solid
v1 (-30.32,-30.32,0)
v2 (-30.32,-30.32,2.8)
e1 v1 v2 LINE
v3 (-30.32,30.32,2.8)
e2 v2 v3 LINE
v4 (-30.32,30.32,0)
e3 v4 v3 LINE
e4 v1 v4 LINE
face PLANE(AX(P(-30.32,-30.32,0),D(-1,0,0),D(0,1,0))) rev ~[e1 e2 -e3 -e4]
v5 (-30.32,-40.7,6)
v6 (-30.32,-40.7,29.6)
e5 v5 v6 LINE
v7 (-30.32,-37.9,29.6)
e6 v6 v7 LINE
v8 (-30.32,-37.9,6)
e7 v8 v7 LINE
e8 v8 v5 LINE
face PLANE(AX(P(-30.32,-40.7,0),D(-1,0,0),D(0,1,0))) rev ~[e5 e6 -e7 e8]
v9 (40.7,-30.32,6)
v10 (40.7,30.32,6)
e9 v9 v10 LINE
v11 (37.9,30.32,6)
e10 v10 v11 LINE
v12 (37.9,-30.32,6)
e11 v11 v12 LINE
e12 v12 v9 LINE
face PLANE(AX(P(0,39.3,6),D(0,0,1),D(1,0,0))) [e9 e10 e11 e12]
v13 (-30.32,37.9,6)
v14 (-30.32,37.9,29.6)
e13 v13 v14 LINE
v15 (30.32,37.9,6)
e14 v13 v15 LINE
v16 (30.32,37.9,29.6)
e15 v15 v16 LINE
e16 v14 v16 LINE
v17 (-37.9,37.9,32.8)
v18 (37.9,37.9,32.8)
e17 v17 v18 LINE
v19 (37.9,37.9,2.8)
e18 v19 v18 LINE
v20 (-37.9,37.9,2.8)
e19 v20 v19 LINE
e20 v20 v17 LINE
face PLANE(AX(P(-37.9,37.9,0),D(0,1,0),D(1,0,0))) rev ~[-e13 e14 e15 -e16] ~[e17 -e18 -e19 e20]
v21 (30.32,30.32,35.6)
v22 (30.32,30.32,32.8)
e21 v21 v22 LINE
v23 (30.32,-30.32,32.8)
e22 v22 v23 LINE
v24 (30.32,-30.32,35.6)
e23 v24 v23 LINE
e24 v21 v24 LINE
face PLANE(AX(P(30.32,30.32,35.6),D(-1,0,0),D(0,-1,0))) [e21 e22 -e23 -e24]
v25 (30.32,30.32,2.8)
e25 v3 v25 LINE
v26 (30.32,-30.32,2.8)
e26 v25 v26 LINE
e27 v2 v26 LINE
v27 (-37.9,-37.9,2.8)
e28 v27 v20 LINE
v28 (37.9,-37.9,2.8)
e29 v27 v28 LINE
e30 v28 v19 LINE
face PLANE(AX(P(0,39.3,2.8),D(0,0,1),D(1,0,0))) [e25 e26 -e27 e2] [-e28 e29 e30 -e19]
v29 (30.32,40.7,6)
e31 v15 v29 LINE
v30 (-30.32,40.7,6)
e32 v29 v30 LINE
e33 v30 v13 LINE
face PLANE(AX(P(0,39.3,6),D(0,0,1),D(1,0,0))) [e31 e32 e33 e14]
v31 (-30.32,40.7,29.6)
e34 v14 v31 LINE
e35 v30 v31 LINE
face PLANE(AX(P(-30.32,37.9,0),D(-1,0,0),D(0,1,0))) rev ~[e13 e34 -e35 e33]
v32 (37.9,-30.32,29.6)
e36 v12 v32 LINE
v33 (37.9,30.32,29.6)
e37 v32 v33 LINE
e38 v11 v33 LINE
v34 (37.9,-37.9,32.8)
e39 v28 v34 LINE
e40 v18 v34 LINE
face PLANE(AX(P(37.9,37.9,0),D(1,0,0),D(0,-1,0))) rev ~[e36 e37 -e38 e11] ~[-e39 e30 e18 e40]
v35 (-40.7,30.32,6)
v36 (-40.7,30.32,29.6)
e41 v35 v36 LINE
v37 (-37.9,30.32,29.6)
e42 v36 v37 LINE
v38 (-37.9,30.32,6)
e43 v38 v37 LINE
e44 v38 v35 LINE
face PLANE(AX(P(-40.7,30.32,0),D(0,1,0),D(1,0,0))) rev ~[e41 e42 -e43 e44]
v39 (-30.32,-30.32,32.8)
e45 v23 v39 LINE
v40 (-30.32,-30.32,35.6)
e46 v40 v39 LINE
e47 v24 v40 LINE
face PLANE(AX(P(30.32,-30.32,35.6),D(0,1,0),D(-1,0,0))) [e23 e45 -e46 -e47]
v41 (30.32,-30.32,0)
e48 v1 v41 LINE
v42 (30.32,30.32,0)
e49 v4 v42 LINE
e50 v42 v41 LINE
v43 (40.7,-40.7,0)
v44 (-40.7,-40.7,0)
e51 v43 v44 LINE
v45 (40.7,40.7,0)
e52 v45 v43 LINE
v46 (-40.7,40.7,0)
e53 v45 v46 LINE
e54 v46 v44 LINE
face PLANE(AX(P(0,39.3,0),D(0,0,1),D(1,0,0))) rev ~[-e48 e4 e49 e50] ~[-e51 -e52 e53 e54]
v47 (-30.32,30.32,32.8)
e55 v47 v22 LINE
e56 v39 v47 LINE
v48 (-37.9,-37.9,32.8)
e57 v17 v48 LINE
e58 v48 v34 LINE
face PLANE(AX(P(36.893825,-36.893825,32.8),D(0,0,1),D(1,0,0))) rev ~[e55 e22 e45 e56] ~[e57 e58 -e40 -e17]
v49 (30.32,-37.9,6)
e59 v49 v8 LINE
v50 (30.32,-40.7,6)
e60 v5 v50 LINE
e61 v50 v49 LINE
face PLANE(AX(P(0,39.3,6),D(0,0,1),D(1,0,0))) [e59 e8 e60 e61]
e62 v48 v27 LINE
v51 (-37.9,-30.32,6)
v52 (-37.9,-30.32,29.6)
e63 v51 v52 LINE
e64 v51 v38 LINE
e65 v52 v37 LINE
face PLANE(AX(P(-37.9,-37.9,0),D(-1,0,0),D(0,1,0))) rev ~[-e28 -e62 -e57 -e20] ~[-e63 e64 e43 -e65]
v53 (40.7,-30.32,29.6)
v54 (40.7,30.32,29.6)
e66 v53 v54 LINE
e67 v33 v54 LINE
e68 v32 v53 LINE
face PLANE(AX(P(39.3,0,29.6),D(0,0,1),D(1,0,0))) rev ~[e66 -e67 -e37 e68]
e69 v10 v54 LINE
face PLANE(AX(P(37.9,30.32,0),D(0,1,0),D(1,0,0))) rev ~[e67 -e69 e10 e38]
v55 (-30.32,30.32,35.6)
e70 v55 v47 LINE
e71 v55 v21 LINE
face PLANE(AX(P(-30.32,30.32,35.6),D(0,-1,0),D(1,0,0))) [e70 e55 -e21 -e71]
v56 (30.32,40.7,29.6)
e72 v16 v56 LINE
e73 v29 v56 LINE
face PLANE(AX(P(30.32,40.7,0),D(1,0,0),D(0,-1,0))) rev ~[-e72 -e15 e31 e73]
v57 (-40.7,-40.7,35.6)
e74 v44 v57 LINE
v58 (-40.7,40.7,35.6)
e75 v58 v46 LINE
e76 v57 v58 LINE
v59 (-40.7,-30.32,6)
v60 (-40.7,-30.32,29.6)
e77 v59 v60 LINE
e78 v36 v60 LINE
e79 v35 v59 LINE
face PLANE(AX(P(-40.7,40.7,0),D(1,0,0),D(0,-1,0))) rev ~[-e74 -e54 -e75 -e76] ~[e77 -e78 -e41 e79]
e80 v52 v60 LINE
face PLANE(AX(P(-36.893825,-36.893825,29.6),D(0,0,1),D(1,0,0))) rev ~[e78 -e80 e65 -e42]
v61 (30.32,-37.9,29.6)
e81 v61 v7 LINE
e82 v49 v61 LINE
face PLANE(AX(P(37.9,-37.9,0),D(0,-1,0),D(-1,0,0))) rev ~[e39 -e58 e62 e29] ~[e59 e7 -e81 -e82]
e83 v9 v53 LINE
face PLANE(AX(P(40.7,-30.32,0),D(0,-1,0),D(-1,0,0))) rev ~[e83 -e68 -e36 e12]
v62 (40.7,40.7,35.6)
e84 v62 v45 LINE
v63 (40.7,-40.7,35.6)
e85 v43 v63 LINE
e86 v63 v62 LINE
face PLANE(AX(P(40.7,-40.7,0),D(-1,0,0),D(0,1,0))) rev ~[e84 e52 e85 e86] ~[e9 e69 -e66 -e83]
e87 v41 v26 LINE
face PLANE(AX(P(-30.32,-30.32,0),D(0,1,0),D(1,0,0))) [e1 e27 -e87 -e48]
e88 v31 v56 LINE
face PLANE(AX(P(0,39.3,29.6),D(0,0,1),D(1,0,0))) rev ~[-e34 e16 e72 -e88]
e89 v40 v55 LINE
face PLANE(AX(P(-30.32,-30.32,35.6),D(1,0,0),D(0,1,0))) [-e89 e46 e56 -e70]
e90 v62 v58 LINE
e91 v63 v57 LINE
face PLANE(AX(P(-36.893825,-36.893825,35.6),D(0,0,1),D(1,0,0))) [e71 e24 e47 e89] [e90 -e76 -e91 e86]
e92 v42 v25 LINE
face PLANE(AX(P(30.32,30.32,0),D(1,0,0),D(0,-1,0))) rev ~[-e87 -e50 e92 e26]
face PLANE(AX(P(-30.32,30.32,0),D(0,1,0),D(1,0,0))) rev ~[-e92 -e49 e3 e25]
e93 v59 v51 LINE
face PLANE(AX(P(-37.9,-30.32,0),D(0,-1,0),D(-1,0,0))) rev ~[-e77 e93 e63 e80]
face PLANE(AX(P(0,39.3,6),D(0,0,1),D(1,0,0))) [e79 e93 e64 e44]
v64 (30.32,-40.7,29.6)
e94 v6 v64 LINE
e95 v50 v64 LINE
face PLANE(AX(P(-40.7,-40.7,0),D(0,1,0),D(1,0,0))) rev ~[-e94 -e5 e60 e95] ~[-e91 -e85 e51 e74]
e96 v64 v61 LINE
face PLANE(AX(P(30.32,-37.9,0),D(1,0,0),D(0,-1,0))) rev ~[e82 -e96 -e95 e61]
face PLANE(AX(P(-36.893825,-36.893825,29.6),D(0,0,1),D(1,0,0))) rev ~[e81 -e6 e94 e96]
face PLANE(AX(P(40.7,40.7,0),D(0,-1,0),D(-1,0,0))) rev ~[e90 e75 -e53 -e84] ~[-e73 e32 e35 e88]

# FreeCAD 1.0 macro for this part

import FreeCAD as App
import Part
import Sketcher
from FreeCAD import Vector


def add_polygon(sketch, points):
    """Adds a closed chain of lines whose ends are joined by coincident constraints."""
    first, n = sketch.GeometryCount, len(points)
    for a, b in zip(points, points[1:] + points[:1]):
        sketch.addGeometry(Part.LineSegment(App.Vector(*a, 0), App.Vector(*b, 0)), False)
    for i in range(n):
        sketch.addConstraint(Sketcher.Constraint("Coincident", first + i, 2, first + (i + 1) % n, 1))

doc = App.newDocument("Part")
params = doc.addObject("Spreadsheet::Sheet", "Params")
for row, (alias, value) in enumerate([
    ("sketch1_width", "81.4 mm"),
    ("sketch1_width2", "60.64 mm"),
    ("pad1_length", "2.8 mm"),
    ("sketch2_width", "81.4 mm"),
    ("sketch2_width2", "75.8 mm"),
    ("pad2_length", "6 mm"),
    ("sketch3_width", "2.8 mm"),
    ("sketch3_width2", "7.58 mm"),
    ("pad3_length", "35.6 mm"),
    ("sketch4_width", "81.4 mm"),
    ("sketch4_width2", "60.64 mm"),
    ("pad4_length", "2.8 mm"),
    ("sketch5_width", "2.8 mm"),
    ("sketch5_width2", "71.02 mm"),
    ("sketch5_width3", "60.64 mm"),
    ("pad5_length", "6 mm"),
], start=1):
    params.set(f"A{row}", alias)
    params.set(f"B{row}", "=" + value)
    params.setAlias(f"B{row}", alias)

body = doc.addObject("PartDesign::Body", "Body")

sketch1 = body.newObject("Sketcher::SketchObject", "Sketch")
sketch1.AttachmentSupport = (doc.getObject("XY_Plane"), [""])
sketch1.MapMode = "FlatFace"
add_polygon(sketch1, [(-40.7, 40.7), (-40.7, -40.7), (40.7, -40.7), (40.7, 40.7)])
add_polygon(sketch1, [(30.32, 30.32), (30.32, -30.32), (-30.32, -30.32), (-30.32, 30.32)])
sketch1.addConstraint([
    Sketcher.Constraint("Vertical", 0),
    Sketcher.Constraint("Horizontal", 1),
    Sketcher.Constraint("Vertical", 2),
    Sketcher.Constraint("Horizontal", 3),
    Sketcher.Constraint("Vertical", 4),
    Sketcher.Constraint("Horizontal", 5),
    Sketcher.Constraint("Vertical", 6),
    Sketcher.Constraint("Horizontal", 7),
    Sketcher.Constraint("Symmetric", 0, 2, 2, 2, -1, 1),
    Sketcher.Constraint("Symmetric", 4, 2, 6, 2, -1, 1),
    Sketcher.Constraint("Equal", 3, 0),
    Sketcher.Constraint("Equal", 7, 4),
    Sketcher.Constraint("DistanceX", 1, 1, 1, 2, 81.4),
    Sketcher.Constraint("DistanceX", 5, 2, 5, 1, 60.64),
])
sketch1.setExpression("Constraints[20]", "Params.sketch1_width")
sketch1.setExpression("Constraints[21]", "Params.sketch1_width2")
pad1 = body.newObject("PartDesign::Pad", "Pad")
pad1.Profile = sketch1
pad1.setExpression("Length", "Params.pad1_length")

sketch2 = body.newObject("Sketcher::SketchObject", "Sketch001")
sketch2.AttachmentSupport = (doc.getObject("XY_Plane"), [""])
sketch2.MapMode = "FlatFace"
add_polygon(sketch2, [(-40.7, 40.7), (-40.7, -40.7), (40.7, -40.7), (40.7, 40.7)])
add_polygon(sketch2, [(37.9, -37.9), (-37.9, -37.9), (-37.9, 37.9), (37.9, 37.9)])
sketch2.addConstraint([
    Sketcher.Constraint("Vertical", 0),
    Sketcher.Constraint("Horizontal", 1),
    Sketcher.Constraint("Vertical", 2),
    Sketcher.Constraint("Horizontal", 3),
    Sketcher.Constraint("Horizontal", 4),
    Sketcher.Constraint("Vertical", 5),
    Sketcher.Constraint("Horizontal", 6),
    Sketcher.Constraint("Vertical", 7),
    Sketcher.Constraint("Symmetric", 0, 2, 2, 2, -1, 1),
    Sketcher.Constraint("Symmetric", 4, 2, 6, 2, -1, 1),
    Sketcher.Constraint("Equal", 3, 0),
    Sketcher.Constraint("Equal", 6, 5),
    Sketcher.Constraint("DistanceX", 1, 1, 1, 2, 81.4),
    Sketcher.Constraint("DistanceX", 4, 2, 4, 1, 75.8),
])
sketch2.setExpression("Constraints[20]", "Params.sketch2_width")
sketch2.setExpression("Constraints[21]", "Params.sketch2_width2")
pad2 = body.newObject("PartDesign::Pad", "Pad001")
pad2.Profile = sketch2
pad2.setExpression("Length", "Params.pad2_length")

sketch3 = body.newObject("Sketcher::SketchObject", "Sketch002")
sketch3.AttachmentSupport = (doc.getObject("XY_Plane"), [""])
sketch3.MapMode = "FlatFace"
add_polygon(sketch3, [(-40.7, 30.32), (-37.9, 30.32), (-37.9, 37.9), (-30.32, 37.9), (-30.32, 40.7), (-40.7, 40.7)])
add_polygon(sketch3, [(37.9, 37.9), (37.9, 30.32), (40.7, 30.32), (40.7, 40.7), (30.32, 40.7), (30.32, 37.9)])
add_polygon(sketch3, [(37.9, -30.32), (37.9, -37.9), (30.32, -37.9), (30.32, -40.7), (40.7, -40.7), (40.7, -30.32)])
add_polygon(sketch3, [(-30.32, -40.7), (-30.32, -37.9), (-37.9, -37.9), (-37.9, -30.32), (-40.7, -30.32), (-40.7, -40.7)])
sketch3.addConstraint([
    Sketcher.Constraint("Horizontal", 0),
    Sketcher.Constraint("Vertical", 1),
    Sketcher.Constraint("Horizontal", 2),
    Sketcher.Constraint("Vertical", 3),
    Sketcher.Constraint("Horizontal", 4),
    Sketcher.Constraint("Vertical", 5),
    Sketcher.Constraint("Vertical", 6),
    Sketcher.Constraint("Horizontal", 7),
    Sketcher.Constraint("Vertical", 8),
    Sketcher.Constraint("Horizontal", 9),
    Sketcher.Constraint("Vertical", 10),
    Sketcher.Constraint("Horizontal", 11),
    Sketcher.Constraint("Vertical", 12),
    Sketcher.Constraint("Horizontal", 13),
    Sketcher.Constraint("Vertical", 14),
    Sketcher.Constraint("Horizontal", 15),
    Sketcher.Constraint("Vertical", 16),
    Sketcher.Constraint("Horizontal", 17),
    Sketcher.Constraint("Vertical", 18),
    Sketcher.Constraint("Horizontal", 19),
    Sketcher.Constraint("Vertical", 20),
    Sketcher.Constraint("Horizontal", 21),
    Sketcher.Constraint("Vertical", 22),
    Sketcher.Constraint("Horizontal", 23),
    Sketcher.Constraint("Symmetric", 1, 2, 12, 2, -1, 1),
    Sketcher.Constraint("Symmetric", 3, 2, 14, 2, -1, 1),
    Sketcher.Constraint("Symmetric", 5, 2, 16, 2, -1, 1),
    Sketcher.Constraint("Symmetric", 10, 2, 18, 2, -1, 1),
    Sketcher.Constraint("Symmetric", 6, 2, 20, 2, -1, 1),
    Sketcher.Constraint("Symmetric", 8, 2, 22, 2, -1, 1),
    Sketcher.Constraint("Symmetric", 0, 2, 6, 2, -2),
    Sketcher.Constraint("Symmetric", 4, 2, 8, 2, -2),
    Sketcher.Constraint("Symmetric", 2, 2, 10, 2, -2),
    Sketcher.Constraint("Equal", 19, 1),
    Sketcher.Constraint("Equal", 21, 3),
    Sketcher.Constraint("DistanceX", 0, 1, 0, 2, 2.8),
    Sketcher.Constraint("DistanceX", 2, 1, 2, 2, 7.58),
    Sketcher.Constraint("DistanceX", 0, 2, -1, 1, 37.9),
    Sketcher.Constraint("DistanceY", -1, 1, 1, 2, 37.9),
])
sketch3.setExpression("Constraints[59]", "Params.sketch3_width")
sketch3.setExpression("Constraints[60]", "Params.sketch3_width2")
pad3 = body.newObject("PartDesign::Pad", "Pad002")
pad3.Profile = sketch3
pad3.setExpression("Length", "Params.pad3_length")

sketch4 = body.newObject("Sketcher::SketchObject", "Sketch003")
sketch4.AttachmentSupport = (doc.getObject("XY_Plane"), [""])
sketch4.MapMode = "FlatFace"
sketch4.AttachmentOffset = App.Placement(Vector(0, 0, 35.6), App.Rotation())
add_polygon(sketch4, [(-40.7, -40.7), (40.7, -40.7), (40.7, 40.7), (-40.7, 40.7)])
add_polygon(sketch4, [(-30.32, -30.32), (-30.32, 30.32), (30.32, 30.32), (30.32, -30.32)])
sketch4.addConstraint([
    Sketcher.Constraint("Horizontal", 0),
    Sketcher.Constraint("Vertical", 1),
    Sketcher.Constraint("Horizontal", 2),
    Sketcher.Constraint("Vertical", 3),
    Sketcher.Constraint("Vertical", 4),
    Sketcher.Constraint("Horizontal", 5),
    Sketcher.Constraint("Vertical", 6),
    Sketcher.Constraint("Horizontal", 7),
    Sketcher.Constraint("Symmetric", 0, 2, 2, 2, -1, 1),
    Sketcher.Constraint("Symmetric", 4, 2, 6, 2, -1, 1),
    Sketcher.Constraint("Equal", 2, 1),
    Sketcher.Constraint("Equal", 7, 4),
    Sketcher.Constraint("DistanceX", 0, 1, 0, 2, 81.4),
    Sketcher.Constraint("DistanceX", 5, 1, 5, 2, 60.64),
])
sketch4.setExpression("Constraints[20]", "Params.sketch4_width")
sketch4.setExpression("Constraints[21]", "Params.sketch4_width2")
pad4 = body.newObject("PartDesign::Pad", "Pad003")
pad4.Profile = sketch4
pad4.setExpression("Length", "Params.pad4_length")
pad4.Reversed = True

sketch5 = body.newObject("Sketcher::SketchObject", "Sketch004")
sketch5.AttachmentSupport = (doc.getObject("XY_Plane"), [""])
sketch5.MapMode = "FlatFace"
sketch5.AttachmentOffset = App.Placement(Vector(0, 0, 35.6), App.Rotation())
add_polygon(sketch5, [(-37.9, -37.9), (-37.9, 30.32), (-40.7, 30.32), (-40.7, -40.7), (30.32, -40.7), (30.32, -37.9)])
add_polygon(sketch5, [(37.9, 30.32), (37.9, -30.32), (40.7, -30.32), (40.7, 30.32)])
add_polygon(sketch5, [(-30.32, 40.7), (-30.32, 37.9), (30.32, 37.9), (30.32, 40.7)])
sketch5.addConstraint([
    Sketcher.Constraint("Vertical", 0),
    Sketcher.Constraint("Horizontal", 1),
    Sketcher.Constraint("Vertical", 2),
    Sketcher.Constraint("Horizontal", 3),
    Sketcher.Constraint("Vertical", 4),
    Sketcher.Constraint("Horizontal", 5),
    Sketcher.Constraint("Vertical", 6),
    Sketcher.Constraint("Horizontal", 7),
    Sketcher.Constraint("Vertical", 8),
    Sketcher.Constraint("Horizontal", 9),
    Sketcher.Constraint("Vertical", 10),
    Sketcher.Constraint("Horizontal", 11),
    Sketcher.Constraint("Vertical", 12),
    Sketcher.Constraint("Horizontal", 13),
    Sketcher.Constraint("Symmetric", 0, 2, 6, 2, -1, 1),
    Sketcher.Constraint("Symmetric", 4, 2, 10, 2, -1, 1),
    Sketcher.Constraint("Symmetric", 1, 2, 8, 2, -2),
    Sketcher.Constraint("Symmetric", 3, 2, 12, 2, -1),
    Sketcher.Constraint("Equal", 5, 0),
    Sketcher.Constraint("Equal", 3, 2),
    Sketcher.Constraint("Equal", 13, 6),
    Sketcher.Constraint("DistanceX", 1, 2, 1, 1, 2.8),
    Sketcher.Constraint("DistanceX", 3, 1, 3, 2, 71.02),
    Sketcher.Constraint("DistanceX", 11, 1, 11, 2, 60.64),
])
sketch5.setExpression("Constraints[35]", "Params.sketch5_width")
sketch5.setExpression("Constraints[36]", "Params.sketch5_width2")
sketch5.setExpression("Constraints[37]", "Params.sketch5_width3")
pad5 = body.newObject("PartDesign::Pad", "Pad004")
pad5.Profile = sketch5
pad5.setExpression("Length", "Params.pad5_length")
pad5.Reversed = True

doc.recompute()
